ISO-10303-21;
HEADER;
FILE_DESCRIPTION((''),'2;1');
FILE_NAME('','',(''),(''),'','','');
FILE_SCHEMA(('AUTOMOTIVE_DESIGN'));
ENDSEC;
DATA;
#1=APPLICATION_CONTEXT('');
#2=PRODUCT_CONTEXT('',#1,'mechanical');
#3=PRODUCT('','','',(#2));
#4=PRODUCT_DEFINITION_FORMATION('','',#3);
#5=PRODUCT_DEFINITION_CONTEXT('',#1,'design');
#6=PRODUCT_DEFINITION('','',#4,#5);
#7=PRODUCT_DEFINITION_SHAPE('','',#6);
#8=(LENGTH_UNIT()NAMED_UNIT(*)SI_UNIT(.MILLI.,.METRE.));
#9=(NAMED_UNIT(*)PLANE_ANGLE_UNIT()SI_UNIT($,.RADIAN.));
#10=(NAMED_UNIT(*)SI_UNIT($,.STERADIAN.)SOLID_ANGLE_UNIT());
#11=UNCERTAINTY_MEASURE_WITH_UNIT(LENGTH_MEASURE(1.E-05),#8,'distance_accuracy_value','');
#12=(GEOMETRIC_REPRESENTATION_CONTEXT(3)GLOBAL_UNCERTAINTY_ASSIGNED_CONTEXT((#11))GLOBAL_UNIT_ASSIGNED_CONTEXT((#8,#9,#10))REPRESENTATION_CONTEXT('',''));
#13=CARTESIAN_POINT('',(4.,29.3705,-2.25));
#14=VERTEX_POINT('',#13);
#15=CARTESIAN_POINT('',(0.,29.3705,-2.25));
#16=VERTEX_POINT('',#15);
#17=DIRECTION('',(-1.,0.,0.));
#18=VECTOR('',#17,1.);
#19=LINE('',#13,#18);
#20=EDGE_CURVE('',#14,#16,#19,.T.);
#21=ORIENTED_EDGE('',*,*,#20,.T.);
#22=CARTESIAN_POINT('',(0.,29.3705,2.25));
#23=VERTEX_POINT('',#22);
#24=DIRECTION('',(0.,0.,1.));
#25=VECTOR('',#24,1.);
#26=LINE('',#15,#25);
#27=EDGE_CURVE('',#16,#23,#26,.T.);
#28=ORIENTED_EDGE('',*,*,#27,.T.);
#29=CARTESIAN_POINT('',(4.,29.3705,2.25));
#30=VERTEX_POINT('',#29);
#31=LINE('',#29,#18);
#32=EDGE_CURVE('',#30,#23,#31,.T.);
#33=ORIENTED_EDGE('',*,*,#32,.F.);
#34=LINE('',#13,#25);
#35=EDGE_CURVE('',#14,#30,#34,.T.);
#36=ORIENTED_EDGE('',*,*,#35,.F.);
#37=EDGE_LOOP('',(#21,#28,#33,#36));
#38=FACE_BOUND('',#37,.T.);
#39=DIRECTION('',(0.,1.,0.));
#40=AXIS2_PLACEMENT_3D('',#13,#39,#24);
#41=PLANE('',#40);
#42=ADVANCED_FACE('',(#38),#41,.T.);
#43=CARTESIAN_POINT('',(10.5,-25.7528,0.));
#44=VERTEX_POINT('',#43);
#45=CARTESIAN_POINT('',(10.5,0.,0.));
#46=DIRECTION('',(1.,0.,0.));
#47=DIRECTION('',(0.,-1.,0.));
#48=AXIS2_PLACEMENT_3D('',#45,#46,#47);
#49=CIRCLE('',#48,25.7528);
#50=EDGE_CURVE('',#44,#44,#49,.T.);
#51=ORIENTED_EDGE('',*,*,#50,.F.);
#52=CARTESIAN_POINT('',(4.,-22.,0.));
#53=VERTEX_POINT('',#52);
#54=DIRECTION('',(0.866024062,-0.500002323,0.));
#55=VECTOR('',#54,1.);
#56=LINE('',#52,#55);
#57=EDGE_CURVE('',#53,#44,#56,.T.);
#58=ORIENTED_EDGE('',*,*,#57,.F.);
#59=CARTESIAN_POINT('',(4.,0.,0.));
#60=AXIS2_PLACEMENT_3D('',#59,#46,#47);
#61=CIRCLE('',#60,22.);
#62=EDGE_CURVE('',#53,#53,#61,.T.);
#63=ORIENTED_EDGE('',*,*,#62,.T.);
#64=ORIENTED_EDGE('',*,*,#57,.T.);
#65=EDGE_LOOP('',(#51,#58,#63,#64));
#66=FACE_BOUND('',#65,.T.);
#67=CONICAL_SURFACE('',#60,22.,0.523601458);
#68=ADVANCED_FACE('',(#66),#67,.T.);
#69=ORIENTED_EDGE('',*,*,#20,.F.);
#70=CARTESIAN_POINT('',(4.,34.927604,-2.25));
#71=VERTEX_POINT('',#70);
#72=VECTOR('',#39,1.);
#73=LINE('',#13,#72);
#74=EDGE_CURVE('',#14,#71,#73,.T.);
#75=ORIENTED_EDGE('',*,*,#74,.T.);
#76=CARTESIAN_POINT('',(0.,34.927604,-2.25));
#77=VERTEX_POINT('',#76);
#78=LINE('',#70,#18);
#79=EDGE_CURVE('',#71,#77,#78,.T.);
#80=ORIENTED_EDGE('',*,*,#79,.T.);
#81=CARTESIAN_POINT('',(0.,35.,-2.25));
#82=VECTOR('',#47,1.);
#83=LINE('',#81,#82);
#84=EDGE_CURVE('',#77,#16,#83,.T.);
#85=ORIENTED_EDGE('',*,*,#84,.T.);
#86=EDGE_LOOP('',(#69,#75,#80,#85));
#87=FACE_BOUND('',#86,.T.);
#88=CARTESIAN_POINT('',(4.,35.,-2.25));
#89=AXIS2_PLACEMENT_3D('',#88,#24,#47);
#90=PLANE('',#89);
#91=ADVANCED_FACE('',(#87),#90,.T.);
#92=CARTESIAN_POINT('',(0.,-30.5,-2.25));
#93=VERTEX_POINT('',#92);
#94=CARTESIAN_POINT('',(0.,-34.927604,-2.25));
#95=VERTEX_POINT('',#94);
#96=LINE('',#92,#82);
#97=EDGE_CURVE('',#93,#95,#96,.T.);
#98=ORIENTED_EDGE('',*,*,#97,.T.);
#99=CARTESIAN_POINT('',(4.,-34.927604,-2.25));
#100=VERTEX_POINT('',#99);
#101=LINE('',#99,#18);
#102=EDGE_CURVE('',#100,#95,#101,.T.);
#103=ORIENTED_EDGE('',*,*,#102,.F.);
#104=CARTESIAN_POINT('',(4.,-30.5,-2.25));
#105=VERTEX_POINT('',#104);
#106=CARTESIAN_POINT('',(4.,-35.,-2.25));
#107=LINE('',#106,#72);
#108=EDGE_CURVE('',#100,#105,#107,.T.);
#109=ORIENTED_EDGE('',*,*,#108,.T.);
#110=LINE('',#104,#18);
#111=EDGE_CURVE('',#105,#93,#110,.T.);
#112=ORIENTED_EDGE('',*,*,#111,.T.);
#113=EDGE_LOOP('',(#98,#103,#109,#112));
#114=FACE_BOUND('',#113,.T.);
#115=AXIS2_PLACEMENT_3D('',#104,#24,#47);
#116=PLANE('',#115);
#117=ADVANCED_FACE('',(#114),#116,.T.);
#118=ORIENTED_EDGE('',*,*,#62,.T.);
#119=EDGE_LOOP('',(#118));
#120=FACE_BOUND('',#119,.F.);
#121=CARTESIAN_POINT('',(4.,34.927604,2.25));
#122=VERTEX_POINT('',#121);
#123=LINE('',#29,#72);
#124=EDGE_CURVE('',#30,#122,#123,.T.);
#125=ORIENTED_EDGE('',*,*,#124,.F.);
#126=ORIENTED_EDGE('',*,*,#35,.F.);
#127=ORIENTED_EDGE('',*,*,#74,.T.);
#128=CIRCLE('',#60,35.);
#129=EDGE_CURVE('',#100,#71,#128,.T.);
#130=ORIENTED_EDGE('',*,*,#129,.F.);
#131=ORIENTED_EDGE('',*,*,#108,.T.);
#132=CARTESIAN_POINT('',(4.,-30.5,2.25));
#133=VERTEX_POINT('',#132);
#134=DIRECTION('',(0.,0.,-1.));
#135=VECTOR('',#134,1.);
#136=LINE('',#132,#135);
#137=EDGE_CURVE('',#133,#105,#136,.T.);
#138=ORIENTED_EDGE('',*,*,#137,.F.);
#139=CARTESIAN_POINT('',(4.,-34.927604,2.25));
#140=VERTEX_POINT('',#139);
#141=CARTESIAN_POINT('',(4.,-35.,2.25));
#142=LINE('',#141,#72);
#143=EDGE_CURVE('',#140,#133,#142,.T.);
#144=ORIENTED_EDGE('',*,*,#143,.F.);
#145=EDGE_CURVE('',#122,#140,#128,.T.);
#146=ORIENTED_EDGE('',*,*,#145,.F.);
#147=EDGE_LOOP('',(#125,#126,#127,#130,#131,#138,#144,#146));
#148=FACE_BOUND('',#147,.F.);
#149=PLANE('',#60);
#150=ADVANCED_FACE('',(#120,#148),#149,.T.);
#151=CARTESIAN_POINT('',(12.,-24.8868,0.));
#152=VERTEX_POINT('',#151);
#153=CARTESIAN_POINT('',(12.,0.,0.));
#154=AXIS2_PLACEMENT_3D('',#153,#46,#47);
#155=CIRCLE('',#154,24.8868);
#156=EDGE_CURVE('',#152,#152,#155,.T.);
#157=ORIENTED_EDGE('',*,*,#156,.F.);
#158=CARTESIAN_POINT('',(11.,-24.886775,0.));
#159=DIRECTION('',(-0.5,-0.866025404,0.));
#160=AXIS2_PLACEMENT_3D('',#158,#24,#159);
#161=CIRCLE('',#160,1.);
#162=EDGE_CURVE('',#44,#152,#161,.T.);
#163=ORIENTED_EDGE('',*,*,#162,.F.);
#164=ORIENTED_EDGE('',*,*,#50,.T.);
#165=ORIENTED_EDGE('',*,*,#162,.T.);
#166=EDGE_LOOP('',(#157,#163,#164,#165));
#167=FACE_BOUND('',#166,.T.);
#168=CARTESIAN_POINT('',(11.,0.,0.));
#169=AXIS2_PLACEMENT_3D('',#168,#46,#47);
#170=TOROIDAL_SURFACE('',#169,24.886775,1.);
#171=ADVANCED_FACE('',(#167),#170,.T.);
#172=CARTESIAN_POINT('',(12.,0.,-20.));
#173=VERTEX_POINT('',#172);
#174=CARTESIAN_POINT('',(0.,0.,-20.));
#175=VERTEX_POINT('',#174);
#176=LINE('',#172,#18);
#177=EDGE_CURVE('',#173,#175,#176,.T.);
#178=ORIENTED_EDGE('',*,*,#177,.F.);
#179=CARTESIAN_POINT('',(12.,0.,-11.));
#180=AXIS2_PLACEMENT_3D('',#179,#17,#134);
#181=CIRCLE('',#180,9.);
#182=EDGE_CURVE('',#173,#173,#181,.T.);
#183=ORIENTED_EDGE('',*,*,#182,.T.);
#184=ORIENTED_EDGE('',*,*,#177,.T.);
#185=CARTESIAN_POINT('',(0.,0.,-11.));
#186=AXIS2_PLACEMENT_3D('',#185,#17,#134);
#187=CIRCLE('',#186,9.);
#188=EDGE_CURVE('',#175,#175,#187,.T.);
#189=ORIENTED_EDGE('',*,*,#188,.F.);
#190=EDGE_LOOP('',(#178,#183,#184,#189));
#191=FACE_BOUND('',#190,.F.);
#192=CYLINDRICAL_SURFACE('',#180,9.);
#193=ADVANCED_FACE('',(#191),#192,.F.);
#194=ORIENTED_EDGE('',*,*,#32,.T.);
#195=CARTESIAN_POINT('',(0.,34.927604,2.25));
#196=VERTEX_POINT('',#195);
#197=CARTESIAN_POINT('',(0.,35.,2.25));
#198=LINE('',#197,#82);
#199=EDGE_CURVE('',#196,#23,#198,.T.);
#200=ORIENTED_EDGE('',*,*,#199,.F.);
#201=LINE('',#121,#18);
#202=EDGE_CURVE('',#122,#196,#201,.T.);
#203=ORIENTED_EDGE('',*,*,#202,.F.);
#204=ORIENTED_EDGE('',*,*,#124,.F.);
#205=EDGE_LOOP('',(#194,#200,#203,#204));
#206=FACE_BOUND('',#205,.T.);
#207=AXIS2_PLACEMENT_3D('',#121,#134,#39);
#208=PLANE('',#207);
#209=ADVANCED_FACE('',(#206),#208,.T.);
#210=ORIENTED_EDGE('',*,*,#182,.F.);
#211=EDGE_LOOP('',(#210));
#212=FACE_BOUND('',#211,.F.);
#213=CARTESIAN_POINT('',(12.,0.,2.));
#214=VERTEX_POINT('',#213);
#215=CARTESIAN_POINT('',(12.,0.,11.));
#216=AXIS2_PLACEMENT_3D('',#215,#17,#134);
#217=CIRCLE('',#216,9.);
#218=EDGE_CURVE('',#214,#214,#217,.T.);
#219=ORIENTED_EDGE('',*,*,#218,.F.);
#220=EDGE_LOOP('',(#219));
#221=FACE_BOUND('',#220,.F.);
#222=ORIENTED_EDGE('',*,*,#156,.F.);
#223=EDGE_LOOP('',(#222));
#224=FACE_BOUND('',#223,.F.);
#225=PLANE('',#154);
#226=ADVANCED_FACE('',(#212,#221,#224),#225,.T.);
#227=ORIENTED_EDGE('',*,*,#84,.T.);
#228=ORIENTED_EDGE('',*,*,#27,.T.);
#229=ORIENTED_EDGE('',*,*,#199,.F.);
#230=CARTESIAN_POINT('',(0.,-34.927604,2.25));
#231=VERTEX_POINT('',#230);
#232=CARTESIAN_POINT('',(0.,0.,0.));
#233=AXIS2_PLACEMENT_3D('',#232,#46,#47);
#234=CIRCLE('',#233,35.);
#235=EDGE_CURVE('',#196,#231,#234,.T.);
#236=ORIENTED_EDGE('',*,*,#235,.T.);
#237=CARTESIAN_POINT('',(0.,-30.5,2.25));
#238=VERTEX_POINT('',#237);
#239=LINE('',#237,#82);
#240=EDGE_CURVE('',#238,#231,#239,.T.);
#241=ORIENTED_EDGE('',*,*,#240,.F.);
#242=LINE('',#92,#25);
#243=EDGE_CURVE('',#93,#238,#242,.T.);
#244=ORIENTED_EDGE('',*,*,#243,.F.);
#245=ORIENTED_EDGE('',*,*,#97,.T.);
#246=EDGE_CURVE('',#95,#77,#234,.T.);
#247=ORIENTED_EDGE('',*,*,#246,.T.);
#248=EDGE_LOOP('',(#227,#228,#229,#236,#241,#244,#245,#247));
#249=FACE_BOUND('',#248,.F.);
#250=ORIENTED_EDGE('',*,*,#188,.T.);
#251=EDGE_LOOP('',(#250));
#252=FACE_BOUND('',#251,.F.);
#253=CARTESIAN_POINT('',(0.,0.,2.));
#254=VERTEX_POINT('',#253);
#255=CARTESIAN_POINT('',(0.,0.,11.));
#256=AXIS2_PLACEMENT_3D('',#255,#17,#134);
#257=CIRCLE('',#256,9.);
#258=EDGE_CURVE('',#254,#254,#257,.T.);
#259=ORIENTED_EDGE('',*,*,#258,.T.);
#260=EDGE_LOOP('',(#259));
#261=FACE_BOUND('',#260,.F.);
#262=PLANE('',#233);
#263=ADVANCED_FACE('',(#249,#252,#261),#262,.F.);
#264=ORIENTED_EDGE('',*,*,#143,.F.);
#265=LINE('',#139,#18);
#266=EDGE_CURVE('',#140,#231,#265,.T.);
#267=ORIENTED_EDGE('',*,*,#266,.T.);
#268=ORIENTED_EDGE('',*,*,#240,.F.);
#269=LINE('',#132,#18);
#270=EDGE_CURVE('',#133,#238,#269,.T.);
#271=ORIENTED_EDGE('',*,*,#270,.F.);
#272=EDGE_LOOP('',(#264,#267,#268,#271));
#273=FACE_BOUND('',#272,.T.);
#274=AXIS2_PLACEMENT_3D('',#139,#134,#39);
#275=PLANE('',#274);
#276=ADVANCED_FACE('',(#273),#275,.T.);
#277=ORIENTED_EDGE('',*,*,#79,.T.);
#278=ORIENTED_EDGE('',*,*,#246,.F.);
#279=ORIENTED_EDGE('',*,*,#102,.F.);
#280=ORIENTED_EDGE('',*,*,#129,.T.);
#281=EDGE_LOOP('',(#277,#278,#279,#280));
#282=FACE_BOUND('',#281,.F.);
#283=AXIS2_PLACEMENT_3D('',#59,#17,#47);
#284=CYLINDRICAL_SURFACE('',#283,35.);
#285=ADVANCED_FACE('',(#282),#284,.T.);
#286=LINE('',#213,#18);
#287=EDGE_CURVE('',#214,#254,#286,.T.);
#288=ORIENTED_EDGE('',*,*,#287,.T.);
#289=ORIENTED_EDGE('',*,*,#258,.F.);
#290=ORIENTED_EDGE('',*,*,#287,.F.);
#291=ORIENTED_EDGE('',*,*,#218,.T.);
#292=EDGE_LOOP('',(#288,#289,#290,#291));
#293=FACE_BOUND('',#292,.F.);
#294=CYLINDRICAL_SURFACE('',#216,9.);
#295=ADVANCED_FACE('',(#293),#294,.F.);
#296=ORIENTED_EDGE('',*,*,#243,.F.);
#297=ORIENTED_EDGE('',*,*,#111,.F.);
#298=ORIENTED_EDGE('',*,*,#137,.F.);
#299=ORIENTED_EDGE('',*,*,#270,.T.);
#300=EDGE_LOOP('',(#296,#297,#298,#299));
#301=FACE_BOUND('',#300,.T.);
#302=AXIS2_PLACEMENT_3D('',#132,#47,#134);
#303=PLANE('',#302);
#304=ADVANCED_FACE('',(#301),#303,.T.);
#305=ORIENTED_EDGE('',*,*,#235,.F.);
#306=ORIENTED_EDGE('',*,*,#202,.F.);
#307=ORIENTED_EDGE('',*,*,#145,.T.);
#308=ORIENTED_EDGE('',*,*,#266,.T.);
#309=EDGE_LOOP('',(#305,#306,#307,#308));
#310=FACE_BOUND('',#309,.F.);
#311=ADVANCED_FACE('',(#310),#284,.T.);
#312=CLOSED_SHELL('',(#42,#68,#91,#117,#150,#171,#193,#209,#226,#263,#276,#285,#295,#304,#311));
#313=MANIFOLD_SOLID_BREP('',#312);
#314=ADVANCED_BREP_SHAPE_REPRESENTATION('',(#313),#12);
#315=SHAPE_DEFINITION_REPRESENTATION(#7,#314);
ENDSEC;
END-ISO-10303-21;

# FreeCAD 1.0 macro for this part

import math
import FreeCAD as App
import Part
import Sketcher
from FreeCAD import Vector
Q = App.Units.Quantity

doc = App.newDocument("Part")
body = doc.addObject("PartDesign::Body", "Body")

# Sketch on XY plane
sketch1 = doc.addObject("Sketcher::SketchObject", "Sketch")
body.addObject(sketch1)
sketch1.AttachmentSupport = (doc.XY_Plane, [""])
sketch1.MapMode = "FlatFace"
sketch1.addGeometry([
    Part.LineSegment(Vector(0, 0, 0), Vector(0, -35, 0)),  # 0
    Part.LineSegment(Vector(0, -35, 0), Vector(4, -35, 0)),  # 1
    Part.LineSegment(Vector(4, -35, 0), Vector(4, -22, 0)),  # 2
    Part.LineSegment(Vector(4, -22, 0), Vector(10.5, -25.8, 0)),  # 3
    Part.ArcOfCircle(Part.Circle(Vector(11, -24.9, 0), Vector(0, 0, 1), 1), math.radians(-120), math.radians(0)),  # 4
    Part.LineSegment(Vector(12, -24.9, 0), Vector(12, 0, 0)),  # 5
    Part.LineSegment(Vector(12, 0, 0), Vector(0, 0, 0)),  # 6
], False)
sketch1.addConstraint([
    Sketcher.Constraint("Coincident", 0, 2, 1, 1),
    Sketcher.Constraint("Coincident", 1, 2, 2, 1),
    Sketcher.Constraint("Coincident", 2, 2, 3, 1),
    Sketcher.Constraint("Tangent", 3, 2, 4, 1),
    Sketcher.Constraint("Tangent", 4, 2, 5, 1),
    Sketcher.Constraint("Coincident", 5, 2, 6, 1),
    Sketcher.Constraint("Coincident", 6, 2, 0, 1),
    Sketcher.Constraint("Vertical", 0),
    Sketcher.Constraint("Horizontal", 1),
    Sketcher.Constraint("Vertical", 2),
    Sketcher.Constraint("Vertical", 5),
    Sketcher.Constraint("Horizontal", 6),
    Sketcher.Constraint("Coincident", 6, 2, -1, 1),
    Sketcher.Constraint("Radius", 4, 1.0),
    Sketcher.Constraint("DistanceX", 1, 1, 1, 2, 4.0),
    Sketcher.Constraint("DistanceY", 0, 2, 0, 1, 35.0),
    Sketcher.Constraint("DistanceY", 2, 2, -1, 1, 22.0),
    Sketcher.Constraint("DistanceX", 2, 2, 4, 2, 8.0),
    Sketcher.Constraint("Angle", 3, Q("-30.0002 deg")),
])
revolution = doc.addObject("PartDesign::Revolution", "Revolution")
body.addObject(revolution)
revolution.Profile = sketch1
revolution.ReferenceAxis = (sketch1, ["H_Axis"])
revolution.Angle = 360

# Sketch on YZ plane
sketch2 = doc.addObject("Sketcher::SketchObject", "Sketch001")
body.addObject(sketch2)
sketch2.AttachmentSupport = (doc.YZ_Plane, [""])
sketch2.MapMode = "FlatFace"
sketch2.AttachmentOffset = App.Placement(Vector(0, 0, 12), App.Rotation())
sketch2.addGeometry(Part.Circle(Vector(0, 11, 0), Vector(0, 0, 1), 9), False)
sketch2.addConstraint([
    Sketcher.Constraint("PointOnObject", 0, 3, -2),
    Sketcher.Constraint("Diameter", 0, 18.0),
    Sketcher.Constraint("DistanceY", -1, 1, 0, 3, 11.0),
])
doc.recompute()
hole = doc.addObject("PartDesign::Hole", "Hole")
body.addObject(hole)
hole.Profile = sketch2
hole.ThreadType = "None"
hole.Diameter = 18
hole.DepthType = "ThroughAll"

# Sketch on YZ plane
sketch3 = doc.addObject("Sketcher::SketchObject", "Sketch002")
body.addObject(sketch3)
sketch3.AttachmentSupport = (doc.YZ_Plane, [""])
sketch3.MapMode = "FlatFace"
sketch3.AttachmentOffset = App.Placement(Vector(0, 0, 12), App.Rotation())
sketch3.addGeometry(Part.Circle(Vector(0, -11, 0), Vector(0, 0, 1), 9), False)
sketch3.addConstraint([
    Sketcher.Constraint("PointOnObject", 0, 3, -2),
    Sketcher.Constraint("Diameter", 0, 18.0),
    Sketcher.Constraint("DistanceY", 0, 3, -1, 1, 11.0),
])
doc.recompute()
hole2 = doc.addObject("PartDesign::Hole", "Hole001")
body.addObject(hole2)
hole2.Profile = sketch3
hole2.ThreadType = "None"
hole2.Diameter = 18
hole2.DepthType = "ThroughAll"

# Sketch on YZ plane
sketch4 = doc.addObject("Sketcher::SketchObject", "Sketch003")
body.addObject(sketch4)
sketch4.AttachmentSupport = (doc.YZ_Plane, [""])
sketch4.MapMode = "FlatFace"
sketch4.AttachmentOffset = App.Placement(Vector(0, 0, 4), App.Rotation())
sketch4.addGeometry([
    Part.LineSegment(Vector(35, 2.2, 0), Vector(29.4, 2.2, 0)),  # 0
    Part.LineSegment(Vector(29.4, 2.2, 0), Vector(29.4, -2.2, 0)),  # 1
    Part.LineSegment(Vector(29.4, -2.2, 0), Vector(35, -2.2, 0)),  # 2
    Part.LineSegment(Vector(35, -2.2, 0), Vector(35, 2.2, 0)),  # 3
    Part.LineSegment(Vector(-30.5, 2.2, 0), Vector(-35, 2.2, 0)),  # 4
    Part.LineSegment(Vector(-35, 2.2, 0), Vector(-35, -2.2, 0)),  # 5
    Part.LineSegment(Vector(-35, -2.2, 0), Vector(-30.5, -2.2, 0)),  # 6
    Part.LineSegment(Vector(-30.5, -2.2, 0), Vector(-30.5, 2.2, 0)),  # 7
], False)
sketch4.addConstraint([
    Sketcher.Constraint("Coincident", 0, 2, 1, 1),
    Sketcher.Constraint("Coincident", 1, 2, 2, 1),
    Sketcher.Constraint("Coincident", 2, 2, 3, 1),
    Sketcher.Constraint("Coincident", 3, 2, 0, 1),
    Sketcher.Constraint("Coincident", 4, 2, 5, 1),
    Sketcher.Constraint("Coincident", 5, 2, 6, 1),
    Sketcher.Constraint("Coincident", 6, 2, 7, 1),
    Sketcher.Constraint("Coincident", 7, 2, 4, 1),
    Sketcher.Constraint("Horizontal", 0),
    Sketcher.Constraint("Vertical", 1),
    Sketcher.Constraint("Horizontal", 2),
    Sketcher.Constraint("Vertical", 3),
    Sketcher.Constraint("Horizontal", 4),
    Sketcher.Constraint("Vertical", 5),
    Sketcher.Constraint("Horizontal", 6),
    Sketcher.Constraint("Vertical", 7),
    Sketcher.Constraint("Symmetric", 2, 2, 4, 2, -1, 1),
    Sketcher.Constraint("Horizontal", 3, 2, 4, 2),
    Sketcher.Constraint("Horizontal", 2, 2, 5, 2),
    Sketcher.Constraint("Equal", 6, 1),
    Sketcher.Constraint("DistanceX", 4, 2, 4, 1, 4.5),
    Sketcher.Constraint("DistanceX", -1, 1, 2, 2, 35.0),
    Sketcher.Constraint("DistanceX", 0, 2, 0, 1, 5.6295),
])
pocket1 = doc.addObject("PartDesign::Pocket", "Pocket")
body.addObject(pocket1)
pocket1.Profile = sketch4
pocket1.Length = 4

doc.recompute()
